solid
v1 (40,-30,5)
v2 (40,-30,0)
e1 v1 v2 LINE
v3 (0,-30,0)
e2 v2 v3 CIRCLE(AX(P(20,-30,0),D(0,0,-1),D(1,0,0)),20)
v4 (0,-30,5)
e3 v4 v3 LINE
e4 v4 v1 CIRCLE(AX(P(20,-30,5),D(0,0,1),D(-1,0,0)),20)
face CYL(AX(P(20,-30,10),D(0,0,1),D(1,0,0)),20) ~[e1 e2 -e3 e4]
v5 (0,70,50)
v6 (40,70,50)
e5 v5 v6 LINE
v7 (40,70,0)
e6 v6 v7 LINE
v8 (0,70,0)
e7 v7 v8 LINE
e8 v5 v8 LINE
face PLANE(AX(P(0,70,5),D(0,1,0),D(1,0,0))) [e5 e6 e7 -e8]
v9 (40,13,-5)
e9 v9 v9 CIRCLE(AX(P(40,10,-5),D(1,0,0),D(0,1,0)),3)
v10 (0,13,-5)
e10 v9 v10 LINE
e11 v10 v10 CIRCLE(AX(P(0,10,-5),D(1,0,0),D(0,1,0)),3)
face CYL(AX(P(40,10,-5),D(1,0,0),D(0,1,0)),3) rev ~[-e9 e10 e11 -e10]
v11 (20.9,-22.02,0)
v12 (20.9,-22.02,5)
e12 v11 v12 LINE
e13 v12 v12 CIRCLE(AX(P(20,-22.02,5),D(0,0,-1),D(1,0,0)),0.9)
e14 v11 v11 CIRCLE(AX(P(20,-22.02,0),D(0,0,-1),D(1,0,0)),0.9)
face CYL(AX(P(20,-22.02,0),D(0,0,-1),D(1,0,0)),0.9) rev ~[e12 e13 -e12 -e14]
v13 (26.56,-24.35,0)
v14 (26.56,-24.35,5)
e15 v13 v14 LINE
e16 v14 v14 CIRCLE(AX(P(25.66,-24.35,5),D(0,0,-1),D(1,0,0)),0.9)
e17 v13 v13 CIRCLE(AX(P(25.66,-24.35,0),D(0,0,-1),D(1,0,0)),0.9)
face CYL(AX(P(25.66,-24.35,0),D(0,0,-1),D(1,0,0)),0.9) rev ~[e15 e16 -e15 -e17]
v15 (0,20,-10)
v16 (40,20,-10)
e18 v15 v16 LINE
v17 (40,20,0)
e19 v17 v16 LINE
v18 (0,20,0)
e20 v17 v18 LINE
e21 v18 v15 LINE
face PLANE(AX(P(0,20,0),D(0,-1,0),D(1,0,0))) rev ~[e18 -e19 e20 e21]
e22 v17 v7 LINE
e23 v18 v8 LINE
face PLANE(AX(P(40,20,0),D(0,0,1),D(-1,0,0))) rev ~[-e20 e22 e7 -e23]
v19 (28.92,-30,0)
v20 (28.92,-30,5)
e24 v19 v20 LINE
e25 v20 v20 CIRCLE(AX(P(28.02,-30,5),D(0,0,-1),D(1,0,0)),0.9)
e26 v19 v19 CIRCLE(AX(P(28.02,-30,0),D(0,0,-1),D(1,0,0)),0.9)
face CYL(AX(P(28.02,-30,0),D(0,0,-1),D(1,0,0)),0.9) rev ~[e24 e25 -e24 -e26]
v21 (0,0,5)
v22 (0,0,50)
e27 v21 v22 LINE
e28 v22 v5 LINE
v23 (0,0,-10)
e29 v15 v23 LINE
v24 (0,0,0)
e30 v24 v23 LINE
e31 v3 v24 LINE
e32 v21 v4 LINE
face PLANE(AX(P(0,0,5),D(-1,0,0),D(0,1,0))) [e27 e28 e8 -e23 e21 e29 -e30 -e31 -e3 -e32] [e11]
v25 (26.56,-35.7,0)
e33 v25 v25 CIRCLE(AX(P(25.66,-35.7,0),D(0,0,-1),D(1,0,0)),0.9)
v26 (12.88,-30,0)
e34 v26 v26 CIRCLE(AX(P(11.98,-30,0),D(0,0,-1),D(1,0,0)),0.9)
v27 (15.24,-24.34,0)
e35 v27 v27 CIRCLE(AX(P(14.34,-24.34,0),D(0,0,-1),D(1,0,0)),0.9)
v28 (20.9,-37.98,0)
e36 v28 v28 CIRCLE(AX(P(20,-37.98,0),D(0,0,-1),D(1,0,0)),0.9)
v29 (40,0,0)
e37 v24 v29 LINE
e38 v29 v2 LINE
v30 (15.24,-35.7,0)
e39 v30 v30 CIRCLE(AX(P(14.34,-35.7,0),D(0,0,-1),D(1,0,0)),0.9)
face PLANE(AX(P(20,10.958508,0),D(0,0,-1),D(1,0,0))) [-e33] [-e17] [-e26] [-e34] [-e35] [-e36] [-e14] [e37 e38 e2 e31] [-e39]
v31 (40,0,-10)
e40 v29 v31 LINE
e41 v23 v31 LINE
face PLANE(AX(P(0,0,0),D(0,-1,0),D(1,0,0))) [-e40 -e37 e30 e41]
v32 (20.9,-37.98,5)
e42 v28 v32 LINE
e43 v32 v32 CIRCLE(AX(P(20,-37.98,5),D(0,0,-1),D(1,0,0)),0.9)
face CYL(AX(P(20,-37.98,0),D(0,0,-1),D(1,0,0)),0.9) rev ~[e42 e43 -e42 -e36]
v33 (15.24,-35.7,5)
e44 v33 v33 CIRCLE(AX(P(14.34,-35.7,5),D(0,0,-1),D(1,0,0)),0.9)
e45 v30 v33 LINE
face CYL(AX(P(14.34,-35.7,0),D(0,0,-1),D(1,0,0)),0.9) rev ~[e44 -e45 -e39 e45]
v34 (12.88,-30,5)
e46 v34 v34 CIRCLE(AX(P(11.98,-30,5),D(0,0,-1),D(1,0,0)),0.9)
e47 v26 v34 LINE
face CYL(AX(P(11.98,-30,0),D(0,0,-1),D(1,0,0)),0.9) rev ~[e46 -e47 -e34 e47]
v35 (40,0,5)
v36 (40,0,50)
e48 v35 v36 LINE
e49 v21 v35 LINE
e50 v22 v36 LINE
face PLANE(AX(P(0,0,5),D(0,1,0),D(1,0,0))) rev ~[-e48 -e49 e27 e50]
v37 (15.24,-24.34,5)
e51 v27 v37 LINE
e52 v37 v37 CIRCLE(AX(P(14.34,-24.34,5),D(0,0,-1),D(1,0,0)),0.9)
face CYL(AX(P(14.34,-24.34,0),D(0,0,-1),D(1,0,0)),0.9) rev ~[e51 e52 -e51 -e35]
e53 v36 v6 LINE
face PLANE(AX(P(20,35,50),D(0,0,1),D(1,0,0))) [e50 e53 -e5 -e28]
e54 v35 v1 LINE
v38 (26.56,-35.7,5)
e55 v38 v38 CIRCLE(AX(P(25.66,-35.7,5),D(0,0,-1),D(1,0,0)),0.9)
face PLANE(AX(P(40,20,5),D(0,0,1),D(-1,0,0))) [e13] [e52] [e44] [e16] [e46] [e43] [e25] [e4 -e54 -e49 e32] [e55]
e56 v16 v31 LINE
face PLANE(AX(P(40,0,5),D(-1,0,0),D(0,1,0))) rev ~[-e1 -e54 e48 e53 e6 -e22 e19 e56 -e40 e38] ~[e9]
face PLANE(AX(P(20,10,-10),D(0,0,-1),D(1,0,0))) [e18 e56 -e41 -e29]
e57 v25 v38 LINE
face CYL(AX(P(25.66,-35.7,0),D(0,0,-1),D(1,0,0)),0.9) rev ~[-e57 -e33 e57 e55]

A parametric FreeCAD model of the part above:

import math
import FreeCAD as App
import Part
import Sketcher
Q = App.Units.Quantity

doc = App.newDocument("Part")
body = doc.addObject("PartDesign::Body", "Body")

# Sketch on XY plane
sketch1 = body.newObject("Sketcher::SketchObject", "Sketch")
sketch1.AttachmentSupport = (doc.getObject("XY_Plane"), [""])
sketch1.MapMode = "FlatFace"
sketch1.AttachmentOffset = App.Placement(App.Vector(0, 0, 10), App.Rotation())
sketch1.addGeometry([
    Part.LineSegment(App.Vector(0, 0, 0), App.Vector(40, 0, 0)),  # 0
    Part.LineSegment(App.Vector(40, 0, 0), App.Vector(40, 60, 0)),  # 1
    Part.ArcOfCircle(Part.Circle(App.Vector(20, 42, 0), App.Vector(0, 0, 1), 27), math.radians(42), math.radians(138)),  # 2
    Part.LineSegment(App.Vector(0, 60, 0), App.Vector(0, 0, 0)),  # 3
    Part.LineSegment(App.Vector(34, 6, 0), App.Vector(6, 6, 0)),  # 4
    Part.LineSegment(App.Vector(6, 6, 0), App.Vector(6, 54, 0)),  # 5
    Part.LineSegment(App.Vector(6, 54, 0), App.Vector(34, 54, 0)),  # 6
    Part.LineSegment(App.Vector(34, 54, 0), App.Vector(34, 6, 0)),  # 7
], False)
sketch1.addConstraint([
    Sketcher.Constraint("Coincident", 0, 2, 1, 1),
    Sketcher.Constraint("Coincident", 1, 2, 2, 1),
    Sketcher.Constraint("Coincident", 2, 2, 3, 1),
    Sketcher.Constraint("Coincident", 3, 2, 0, 1),
    Sketcher.Constraint("Coincident", 4, 2, 5, 1),
    Sketcher.Constraint("Coincident", 5, 2, 6, 1),
    Sketcher.Constraint("Coincident", 6, 2, 7, 1),
    Sketcher.Constraint("Coincident", 7, 2, 4, 1),
    Sketcher.Constraint("Horizontal", 0),
    Sketcher.Constraint("Vertical", 1),
    Sketcher.Constraint("Vertical", 3),
    Sketcher.Constraint("Horizontal", 4),
    Sketcher.Constraint("Vertical", 5),
    Sketcher.Constraint("Horizontal", 6),
    Sketcher.Constraint("Vertical", 7),
    Sketcher.Constraint("Coincident", 3, 2, -1, 1),
    Sketcher.Constraint("Horizontal", 1, 2, 2, 2),
    Sketcher.Constraint("DistanceX", 0, 1, 0, 2, Q("40 mm")),
    Sketcher.Constraint("DistanceX", 4, 2, 4, 1, Q("29 mm")),
    Sketcher.Constraint("DistanceY", 1, 1, 1, 2, Q("60 mm")),
    Sketcher.Constraint("DistanceY", 5, 1, 5, 2, Q("47 mm")),
    Sketcher.Constraint("DistanceX", -1, 1, 4, 2, Q("5.5 mm")),
    Sketcher.Constraint("DistanceY", -1, 1, 4, 2, Q("6.5 mm")),
    Sketcher.Constraint("DistanceY", -1, 1, 2, 3, Q("42.250001 mm")),
])
pad1 = body.newObject("PartDesign::Pad", "Pad")
pad1.Profile = sketch1
pad1.Length = 40

# Sketch on XY plane
sketch2 = body.newObject("Sketcher::SketchObject", "Sketch001")
sketch2.AttachmentSupport = (doc.getObject("XY_Plane"), [""])
sketch2.MapMode = "FlatFace"
sketch2.AttachmentOffset = App.Placement(App.Vector(0, 0, 10), App.Rotation())
sketch2.addGeometry([
    Part.LineSegment(App.Vector(40, 60, 0), App.Vector(40, -30, 0)),  # 0
    Part.ArcOfCircle(Part.Circle(App.Vector(20, -30, 0), App.Vector(0, 0, 1), 20), math.radians(180), math.radians(360)),  # 1
    Part.LineSegment(App.Vector(0, -30, 0), App.Vector(0, 60, 0)),  # 2
    Part.ArcOfCircle(Part.Circle(App.Vector(20, 42, 0), App.Vector(0, 0, 1), 27), math.radians(42), math.radians(138)),  # 3
    Part.Circle(App.Vector(20, 42, 0), App.Vector(0, 0, 1), 10),  # 4
], False)
sketch2.addConstraint([
    Sketcher.Constraint("Tangent", 0, 2, 1, 2),
    Sketcher.Constraint("Tangent", 1, 1, 2, 1),
    Sketcher.Constraint("Coincident", 2, 2, 3, 2),
    Sketcher.Constraint("Coincident", 3, 1, 0, 1),
    Sketcher.Constraint("Vertical", 0),
    Sketcher.Constraint("Vertical", 2),
    Sketcher.Constraint("Coincident", 4, 3, 3, 3),
    Sketcher.Constraint("PointOnObject", 1, 1, -2),
    Sketcher.Constraint("Horizontal", 2, 2, 3, 1),
    Sketcher.Constraint("Radius", 1, Q("20 mm")),
    Sketcher.Constraint("Diameter", 4, Q("19.5 mm")),
    Sketcher.Constraint("DistanceY", 0, 2, 0, 1, Q("90 mm")),
    Sketcher.Constraint("DistanceY", 1, 3, -1, 1, Q("30 mm")),
    Sketcher.Constraint("DistanceY", -1, 1, 3, 3, Q("42.250001 mm")),
])
pad2 = body.newObject("PartDesign::Pad", "Pad001")
pad2.Profile = sketch2
pad2.Length = 10
pad2.Reversed = True

# Sketch on YZ plane
sketch3 = body.newObject("Sketcher::SketchObject", "Sketch002")
sketch3.AttachmentSupport = (doc.getObject("YZ_Plane"), [""])
sketch3.MapMode = "FlatFace"
sketch3.addGeometry([
    Part.LineSegment(App.Vector(76, 6, 0), App.Vector(76, 0, 0)),
    Part.LineSegment(App.Vector(76, 0, 0), App.Vector(20, 0, 0)),
    Part.LineSegment(App.Vector(20, 0, 0), App.Vector(20, 6, 0)),
    Part.LineSegment(App.Vector(20, 6, 0), App.Vector(76, 6, 0)),
], False)
sketch3.addConstraint([
    Sketcher.Constraint("Coincident", 0, 2, 1, 1),
    Sketcher.Constraint("Coincident", 1, 2, 2, 1),
    Sketcher.Constraint("Coincident", 2, 2, 3, 1),
    Sketcher.Constraint("Coincident", 3, 2, 0, 1),
    Sketcher.Constraint("Vertical", 0),
    Sketcher.Constraint("Horizontal", 1),
    Sketcher.Constraint("Vertical", 2),
    Sketcher.Constraint("Horizontal", 3),
    Sketcher.Constraint("PointOnObject", 0, 2, -1),
    Sketcher.Constraint("DistanceX", 1, 2, 1, 1, Q("56 mm")),
    Sketcher.Constraint("DistanceY", 0, 2, 0, 1, Q("6 mm")),
    Sketcher.Constraint("DistanceX", -1, 1, 0, 2, Q("76 mm")),
])
pocket1 = body.newObject("PartDesign::Pocket", "Pocket")
pocket1.Profile = sketch3
pocket1.Length = 100
pocket1.Reversed = True

# Sketch on XY plane
sketch4 = body.newObject("Sketcher::SketchObject", "Sketch003")
sketch4.AttachmentSupport = (doc.getObject("XY_Plane"), [""])
sketch4.MapMode = "FlatFace"
sketch4.AttachmentOffset = App.Placement(App.Vector(0, 0, 10), App.Rotation())
sketch4.addGeometry([
    Part.LineSegment(App.Vector(40, 0, 0), App.Vector(0, 0, 0)),
    Part.LineSegment(App.Vector(0, 0, 0), App.Vector(0, -30, 0)),
    Part.ArcOfCircle(Part.Circle(App.Vector(20, -30, 0), App.Vector(0, 0, 1), 20), math.radians(180), math.radians(360)),
    Part.LineSegment(App.Vector(40, -30, 0), App.Vector(40, 0, 0)),
], False)
sketch4.addConstraint([
    Sketcher.Constraint("Coincident", 0, 2, 1, 1),
    Sketcher.Constraint("Tangent", 1, 2, 2, 1),
    Sketcher.Constraint("Tangent", 2, 2, 3, 1),
    Sketcher.Constraint("Coincident", 3, 2, 0, 1),
    Sketcher.Constraint("Horizontal", 0),
    Sketcher.Constraint("Vertical", 1),
    Sketcher.Constraint("Vertical", 3),
    Sketcher.Constraint("Coincident", 0, 2, -1, 1),
    Sketcher.Constraint("Radius", 2, Q("20 mm")),
    Sketcher.Constraint("DistanceY", 1, 2, 1, 1, Q("30 mm")),
])
pocket2 = body.newObject("PartDesign::Pocket", "Pocket001")
pocket2.Profile = sketch4
pocket2.Length = 5

# Sketch on XY plane
sketch5 = body.newObject("Sketcher::SketchObject", "Sketch004")
sketch5.AttachmentSupport = (doc.getObject("XY_Plane"), [""])
sketch5.MapMode = "FlatFace"
sketch5.addGeometry([
    Part.Circle(App.Vector(12, -30, 0), App.Vector(0, 0, 1), 0.9),  # 0
    Part.Circle(App.Vector(14.3, -35.7, 0), App.Vector(0, 0, 1), 0.9),  # 1
    Part.Circle(App.Vector(20, -38, 0), App.Vector(0, 0, 1), 0.9),  # 2
    Part.Circle(App.Vector(25.7, -35.7, 0), App.Vector(0, 0, 1), 0.9),  # 3
    Part.Circle(App.Vector(28, -30, 0), App.Vector(0, 0, 1), 0.9),  # 4
    Part.Circle(App.Vector(25.7, -24.4, 0), App.Vector(0, 0, 1), 0.9),  # 5
    Part.Circle(App.Vector(20, -22, 0), App.Vector(0, 0, 1), 0.9),  # 6
    Part.Circle(App.Vector(14.3, -24.3, 0), App.Vector(0, 0, 1), 0.9),  # 7
], False)
sketch5.addConstraint([
    Sketcher.Constraint("Equal", 0, 1),
    Sketcher.Constraint("Equal", 1, 2),
    Sketcher.Constraint("Equal", 2, 3),
    Sketcher.Constraint("Equal", 3, 4),
    Sketcher.Constraint("Equal", 4, 5),
    Sketcher.Constraint("Equal", 5, 6),
    Sketcher.Constraint("Equal", 6, 7),
    Sketcher.Constraint("Horizontal", 1, 3, 3, 3),
    Sketcher.Constraint("Horizontal", 0, 3, 4, 3),
    Sketcher.Constraint("Vertical", 3, 3, 5, 3),
    Sketcher.Constraint("Vertical", 2, 3, 6, 3),
    Sketcher.Constraint("Vertical", 1, 3, 7, 3),
    Sketcher.Constraint("Diameter", 0, Q("1.8 mm")),
    Sketcher.Constraint("DistanceY", 0, 3, -1, 1, Q("30 mm")),
    Sketcher.Constraint("DistanceX", -1, 1, 2, 3, Q("20 mm")),
    Sketcher.Constraint("DistanceY", 1, 3, -1, 1, Q("35.7 mm")),
    Sketcher.Constraint("DistanceX", -1, 1, 0, 3, Q("11.98 mm")),
    Sketcher.Constraint("DistanceX", -1, 1, 1, 3, Q("14.34 mm")),
    Sketcher.Constraint("DistanceY", 2, 3, -1, 1, Q("37.98 mm")),
    Sketcher.Constraint("DistanceX", -1, 1, 3, 3, Q("25.66 mm")),
    Sketcher.Constraint("DistanceX", -1, 1, 4, 3, Q("28.02 mm")),
    Sketcher.Constraint("DistanceY", 5, 3, -1, 1, Q("24.35 mm")),
    Sketcher.Constraint("DistanceY", 6, 3, -1, 1, Q("22.02 mm")),
    Sketcher.Constraint("DistanceY", 7, 3, -1, 1, Q("24.34 mm")),
])
pocket3 = body.newObject("PartDesign::Pocket", "Pocket002")
pocket3.Profile = sketch5
pocket3.Length = 5
pocket3.Reversed = True

# Sketch on XY plane
sketch6 = body.newObject("Sketcher::SketchObject", "Sketch005")
sketch6.AttachmentSupport = (doc.getObject("XY_Plane"), [""])
sketch6.MapMode = "FlatFace"
sketch6.addGeometry([
    Part.LineSegment(App.Vector(0, 0, 0), App.Vector(0, 20, 0)),
    Part.LineSegment(App.Vector(0, 20, 0), App.Vector(40, 20, 0)),
    Part.LineSegment(App.Vector(40, 20, 0), App.Vector(40, 0, 0)),
    Part.LineSegment(App.Vector(40, 0, 0), App.Vector(0, 0, 0)),
], False)
sketch6.addConstraint([
    Sketcher.Constraint("Coincident", 0, 2, 1, 1),
    Sketcher.Constraint("Coincident", 1, 2, 2, 1),
    Sketcher.Constraint("Coincident", 2, 2, 3, 1),
    Sketcher.Constraint("Coincident", 3, 2, 0, 1),
    Sketcher.Constraint("Vertical", 0),
    Sketcher.Constraint("Horizontal", 1),
    Sketcher.Constraint("Vertical", 2),
    Sketcher.Constraint("Horizontal", 3),
    Sketcher.Constraint("Coincident", 3, 2, -1, 1),
    Sketcher.Constraint("DistanceX", 1, 1, 1, 2, Q("40 mm")),
    Sketcher.Constraint("DistanceY", 0, 1, 0, 2, Q("20 mm")),
])
pad3 = body.newObject("PartDesign::Pad", "Pad002")
pad3.Profile = sketch6
pad3.Length = 10
pad3.Reversed = True

# Sketch on YZ plane
sketch7 = body.newObject("Sketcher::SketchObject", "Sketch006")
sketch7.AttachmentSupport = (doc.getObject("YZ_Plane"), [""])
sketch7.MapMode = "FlatFace"
sketch7.AttachmentOffset = App.Placement(App.Vector(0, 0, 40), App.Rotation())
sketch7.addGeometry(Part.Circle(App.Vector(10, -5, 0), App.Vector(0, 0, 1), 3), False)
sketch7.addConstraint([
    Sketcher.Constraint("Diameter", 0, Q("6 mm")),
    Sketcher.Constraint("DistanceX", -1, 1, 0, 3, Q("10 mm")),
    Sketcher.Constraint("DistanceY", 0, 3, -1, 1, Q("5 mm")),
])
pocket4 = body.newObject("PartDesign::Pocket", "Pocket003")
pocket4.Profile = sketch7
pocket4.Length = 50

# Sketch on XZ plane
sketch8 = body.newObject("Sketcher::SketchObject", "Sketch007")
sketch8.AttachmentSupport = (doc.getObject("XZ_Plane"), [""])
sketch8.MapMode = "FlatFace"
sketch8.addGeometry([
    Part.LineSegment(App.Vector(0, 50, 0), App.Vector(0, 5, 0)),
    Part.LineSegment(App.Vector(0, 5, 0), App.Vector(40, 5, 0)),
    Part.LineSegment(App.Vector(40, 5, 0), App.Vector(40, 50, 0)),
    Part.LineSegment(App.Vector(40, 50, 0), App.Vector(0, 50, 0)),
], False)
sketch8.addConstraint([
    Sketcher.Constraint("Coincident", 0, 2, 1, 1),
    Sketcher.Constraint("Coincident", 1, 2, 2, 1),
    Sketcher.Constraint("Coincident", 2, 2, 3, 1),
    Sketcher.Constraint("Coincident", 3, 2, 0, 1),
    Sketcher.Constraint("Vertical", 0),
    Sketcher.Constraint("Horizontal", 1),
    Sketcher.Constraint("Vertical", 2),
    Sketcher.Constraint("Horizontal", 3),
    Sketcher.Constraint("PointOnObject", 0, 2, -2),
    Sketcher.Constraint("DistanceX", 1, 1, 1, 2, Q("40 mm")),
    Sketcher.Constraint("DistanceY", 0, 2, 0, 1, Q("45 mm")),
    Sketcher.Constraint("DistanceY", -1, 1, 0, 2, Q("5 mm")),
])
pocket5 = body.newObject("PartDesign::Pocket", "Pocket004")
pocket5.Profile = sketch8
pocket5.Type = "ThroughAll"

# Sketch on XZ plane
sketch9 = body.newObject("Sketcher::SketchObject", "Sketch008")
sketch9.AttachmentSupport = (doc.getObject("XZ_Plane"), [""])
sketch9.MapMode = "FlatFace"
sketch9.AttachmentOffset = App.Placement(App.Vector(0, 0, -20), App.Rotation())
sketch9.addGeometry([
    Part.LineSegment(App.Vector(40, 5, 0), App.Vector(40, 0, 0)),
    Part.LineSegment(App.Vector(40, 0, 0), App.Vector(0, 0, 0)),
    Part.LineSegment(App.Vector(0, 0, 0), App.Vector(0, 5, 0)),
    Part.LineSegment(App.Vector(0, 5, 0), App.Vector(40, 5, 0)),
], False)
sketch9.addConstraint([
    Sketcher.Constraint("Coincident", 0, 2, 1, 1),
    Sketcher.Constraint("Coincident", 1, 2, 2, 1),
    Sketcher.Constraint("Coincident", 2, 2, 3, 1),
    Sketcher.Constraint("Coincident", 3, 2, 0, 1),
    Sketcher.Constraint("Vertical", 0),
    Sketcher.Constraint("Horizontal", 1),
    Sketcher.Constraint("Vertical", 2),
    Sketcher.Constraint("Horizontal", 3),
    Sketcher.Constraint("Coincident", 1, 2, -1, 1),
    Sketcher.Constraint("DistanceX", 1, 2, 1, 1, Q("40 mm")),
    Sketcher.Constraint("DistanceY", 0, 2, 0, 1, Q("5 mm")),
])
pad4 = body.newObject("PartDesign::Pad", "Pad003")
pad4.Profile = sketch9
pad4.Length = 50
pad4.Reversed = True

# Sketch on XY plane
sketch10 = body.newObject("Sketcher::SketchObject", "Sketch009")
sketch10.AttachmentSupport = (doc.getObject("XY_Plane"), [""])
sketch10.MapMode = "FlatFace"
sketch10.AttachmentOffset = App.Placement(App.Vector(0, 0, 5), App.Rotation())
sketch10.addGeometry([
    Part.LineSegment(App.Vector(0, 70, 0), App.Vector(0, 0, 0)),
    Part.LineSegment(App.Vector(0, 0, 0), App.Vector(40, 0, 0)),
    Part.LineSegment(App.Vector(40, 0, 0), App.Vector(40, 70, 0)),
    Part.LineSegment(App.Vector(40, 70, 0), App.Vector(0, 70, 0)),
], False)
sketch10.addConstraint([
    Sketcher.Constraint("Coincident", 0, 2, 1, 1),
    Sketcher.Constraint("Coincident", 1, 2, 2, 1),
    Sketcher.Constraint("Coincident", 2, 2, 3, 1),
    Sketcher.Constraint("Coincident", 3, 2, 0, 1),
    Sketcher.Constraint("Vertical", 0),
    Sketcher.Constraint("Horizontal", 1),
    Sketcher.Constraint("Vertical", 2),
    Sketcher.Constraint("Horizontal", 3),
    Sketcher.Constraint("Coincident", 0, 2, -1, 1),
    Sketcher.Constraint("DistanceX", 1, 1, 1, 2, Q("40 mm")),
    Sketcher.Constraint("DistanceY", 0, 2, 0, 1, Q("70 mm")),
])
pad5 = body.newObject("PartDesign::Pad", "Pad004")
pad5.Profile = sketch10
pad5.Length = 45

doc.recompute()
